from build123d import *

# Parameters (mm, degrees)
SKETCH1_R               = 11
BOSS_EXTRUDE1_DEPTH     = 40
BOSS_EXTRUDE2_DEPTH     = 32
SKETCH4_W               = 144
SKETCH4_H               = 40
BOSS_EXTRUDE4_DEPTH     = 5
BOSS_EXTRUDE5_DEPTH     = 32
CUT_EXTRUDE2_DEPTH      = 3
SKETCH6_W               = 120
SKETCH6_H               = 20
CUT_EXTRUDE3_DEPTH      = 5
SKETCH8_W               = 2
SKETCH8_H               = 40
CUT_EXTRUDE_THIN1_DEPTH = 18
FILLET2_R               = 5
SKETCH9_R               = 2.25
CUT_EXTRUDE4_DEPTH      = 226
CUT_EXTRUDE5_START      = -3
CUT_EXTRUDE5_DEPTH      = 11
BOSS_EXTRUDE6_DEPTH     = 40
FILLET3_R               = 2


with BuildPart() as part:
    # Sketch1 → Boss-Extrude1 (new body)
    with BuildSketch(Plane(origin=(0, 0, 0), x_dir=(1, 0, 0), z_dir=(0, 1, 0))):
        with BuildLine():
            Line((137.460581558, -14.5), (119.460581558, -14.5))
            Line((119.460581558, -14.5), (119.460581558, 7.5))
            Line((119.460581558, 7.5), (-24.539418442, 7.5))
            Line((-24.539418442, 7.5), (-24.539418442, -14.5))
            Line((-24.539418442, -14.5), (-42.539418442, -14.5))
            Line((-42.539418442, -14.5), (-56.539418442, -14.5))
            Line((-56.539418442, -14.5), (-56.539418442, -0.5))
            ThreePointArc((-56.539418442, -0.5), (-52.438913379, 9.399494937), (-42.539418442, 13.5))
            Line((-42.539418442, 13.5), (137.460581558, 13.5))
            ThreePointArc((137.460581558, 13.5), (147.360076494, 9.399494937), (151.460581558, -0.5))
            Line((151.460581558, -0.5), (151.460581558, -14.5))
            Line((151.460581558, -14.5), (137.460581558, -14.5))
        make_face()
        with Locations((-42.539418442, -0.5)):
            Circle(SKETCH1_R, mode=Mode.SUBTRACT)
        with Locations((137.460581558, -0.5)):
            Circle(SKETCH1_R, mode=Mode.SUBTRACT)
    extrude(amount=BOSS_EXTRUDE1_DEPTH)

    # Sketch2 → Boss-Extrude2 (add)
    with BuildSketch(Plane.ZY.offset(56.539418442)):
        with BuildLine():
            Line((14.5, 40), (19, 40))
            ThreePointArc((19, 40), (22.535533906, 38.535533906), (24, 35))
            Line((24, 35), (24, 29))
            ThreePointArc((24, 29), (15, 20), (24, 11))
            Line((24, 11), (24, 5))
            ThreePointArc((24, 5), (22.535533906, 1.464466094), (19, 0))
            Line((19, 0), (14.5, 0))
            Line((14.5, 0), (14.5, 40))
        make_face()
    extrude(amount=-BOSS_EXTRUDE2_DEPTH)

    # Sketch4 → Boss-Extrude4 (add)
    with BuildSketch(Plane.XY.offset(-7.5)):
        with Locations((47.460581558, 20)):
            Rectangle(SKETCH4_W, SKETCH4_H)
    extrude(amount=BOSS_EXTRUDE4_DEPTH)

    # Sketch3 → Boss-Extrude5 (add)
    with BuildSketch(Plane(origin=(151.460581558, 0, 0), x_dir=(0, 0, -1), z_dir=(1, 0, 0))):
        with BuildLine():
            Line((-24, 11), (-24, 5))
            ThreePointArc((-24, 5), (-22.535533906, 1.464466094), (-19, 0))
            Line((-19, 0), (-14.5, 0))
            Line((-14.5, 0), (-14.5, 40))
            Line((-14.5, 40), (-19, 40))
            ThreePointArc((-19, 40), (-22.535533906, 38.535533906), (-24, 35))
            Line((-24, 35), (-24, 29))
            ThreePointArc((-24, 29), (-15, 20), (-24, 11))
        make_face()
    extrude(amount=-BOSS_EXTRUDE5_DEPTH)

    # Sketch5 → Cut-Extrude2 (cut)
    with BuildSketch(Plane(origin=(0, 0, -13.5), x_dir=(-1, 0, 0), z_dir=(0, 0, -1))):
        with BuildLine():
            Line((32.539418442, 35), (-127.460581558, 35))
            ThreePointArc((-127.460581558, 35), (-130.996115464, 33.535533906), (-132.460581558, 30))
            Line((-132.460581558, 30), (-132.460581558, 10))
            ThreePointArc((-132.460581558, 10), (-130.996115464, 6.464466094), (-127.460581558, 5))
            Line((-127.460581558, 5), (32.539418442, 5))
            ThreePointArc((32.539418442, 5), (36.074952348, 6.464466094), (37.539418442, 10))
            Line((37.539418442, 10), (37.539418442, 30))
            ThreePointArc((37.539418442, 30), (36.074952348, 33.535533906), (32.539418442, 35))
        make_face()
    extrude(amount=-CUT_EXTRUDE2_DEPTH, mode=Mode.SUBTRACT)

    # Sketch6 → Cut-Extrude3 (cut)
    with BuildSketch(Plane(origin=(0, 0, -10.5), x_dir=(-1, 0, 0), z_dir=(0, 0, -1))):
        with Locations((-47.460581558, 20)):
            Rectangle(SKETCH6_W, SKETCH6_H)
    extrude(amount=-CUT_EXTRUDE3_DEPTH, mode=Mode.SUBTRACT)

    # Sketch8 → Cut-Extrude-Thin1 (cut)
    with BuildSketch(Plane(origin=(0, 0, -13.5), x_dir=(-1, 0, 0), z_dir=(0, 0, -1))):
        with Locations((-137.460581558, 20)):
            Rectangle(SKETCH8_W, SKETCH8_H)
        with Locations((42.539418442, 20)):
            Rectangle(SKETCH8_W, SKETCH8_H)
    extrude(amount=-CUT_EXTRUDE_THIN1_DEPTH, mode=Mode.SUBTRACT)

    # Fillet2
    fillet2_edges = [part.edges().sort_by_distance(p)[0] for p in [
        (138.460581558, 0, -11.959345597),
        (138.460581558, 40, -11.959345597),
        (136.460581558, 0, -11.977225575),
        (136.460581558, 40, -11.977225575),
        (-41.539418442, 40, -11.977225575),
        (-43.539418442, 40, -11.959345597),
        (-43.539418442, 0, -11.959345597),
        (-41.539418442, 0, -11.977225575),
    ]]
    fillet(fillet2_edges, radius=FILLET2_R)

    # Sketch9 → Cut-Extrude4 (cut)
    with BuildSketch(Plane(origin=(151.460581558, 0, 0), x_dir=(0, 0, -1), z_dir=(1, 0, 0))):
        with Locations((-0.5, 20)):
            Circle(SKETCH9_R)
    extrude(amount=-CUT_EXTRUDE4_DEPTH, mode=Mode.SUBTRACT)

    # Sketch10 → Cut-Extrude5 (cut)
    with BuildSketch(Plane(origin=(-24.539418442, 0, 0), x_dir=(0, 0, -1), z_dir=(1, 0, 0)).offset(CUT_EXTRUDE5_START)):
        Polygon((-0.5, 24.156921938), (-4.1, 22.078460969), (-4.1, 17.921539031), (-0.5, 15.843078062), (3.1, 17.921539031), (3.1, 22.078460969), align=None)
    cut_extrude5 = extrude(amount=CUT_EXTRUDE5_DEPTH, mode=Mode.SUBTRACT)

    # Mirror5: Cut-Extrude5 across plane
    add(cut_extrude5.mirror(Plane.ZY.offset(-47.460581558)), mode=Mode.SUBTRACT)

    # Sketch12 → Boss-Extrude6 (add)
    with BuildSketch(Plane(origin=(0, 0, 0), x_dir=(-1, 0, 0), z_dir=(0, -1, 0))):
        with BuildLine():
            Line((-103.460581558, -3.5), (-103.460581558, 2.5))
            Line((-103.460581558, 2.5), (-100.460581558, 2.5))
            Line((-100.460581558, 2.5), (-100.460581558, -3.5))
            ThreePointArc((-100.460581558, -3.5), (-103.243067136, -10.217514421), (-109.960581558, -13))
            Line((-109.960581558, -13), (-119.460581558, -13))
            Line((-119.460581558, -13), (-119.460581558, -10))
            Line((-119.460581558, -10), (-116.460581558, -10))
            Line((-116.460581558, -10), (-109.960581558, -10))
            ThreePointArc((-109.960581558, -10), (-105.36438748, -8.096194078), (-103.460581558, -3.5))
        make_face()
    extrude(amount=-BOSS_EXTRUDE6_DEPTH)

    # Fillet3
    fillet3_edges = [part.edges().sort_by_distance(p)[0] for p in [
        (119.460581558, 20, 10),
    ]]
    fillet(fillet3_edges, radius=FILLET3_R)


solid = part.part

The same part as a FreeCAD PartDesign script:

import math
import FreeCAD as App
import Part
import Sketcher

V = App.Vector
Q = App.Units.Quantity


def edges_at(feature, points):
    """Names of the edges that pass closest to the given points."""
    edges = feature.Shape.Edges
    near = lambda p: min(range(len(edges)), key=lambda i: edges[i].distToShape(Part.Vertex(*p))[0])
    return sorted({f"Edge{near(p) + 1}" for p in points})

doc = App.newDocument("Part")
params = doc.addObject("Spreadsheet::Sheet", "Params")
for row, (alias, value) in enumerate([
    ("sketch1_diameter", "22 mm"),
    ("sketch1_radius", "14 mm"),
    ("sketch1_width", "32 mm"),
    ("sketch1_width2", "180 mm"),
    ("sketch1_height", "22 mm"),
    ("pad1_length", "40 mm"),
    ("sketch2_radius", "5 mm"),
    ("sketch2_radius2", "9 mm"),
    ("sketch2_width", "40 mm"),
    ("sketch2_height", "4.5 mm"),
    ("pad2_length", "32 mm"),
    ("sketch3_width", "144 mm"),
    ("sketch3_height", "40 mm"),
    ("pad3_length", "5 mm"),
    ("sketch4_radius", "5 mm"),
    ("sketch4_radius2", "9 mm"),
    ("sketch4_width", "6 mm"),
    ("sketch4_height", "4.5 mm"),
    ("pad4_length", "32 mm"),
    ("sketch5_radius", "5 mm"),
    ("sketch5_width", "160 mm"),
    ("sketch5_height", "20 mm"),
    ("pocket1_length", "3 mm"),
    ("sketch6_width", "120 mm"),
    ("sketch6_height", "20 mm"),
    ("pocket2_length", "5 mm"),
    ("sketch7_width", "2 mm"),
    ("sketch7_height", "40 mm"),
    ("pocket3_length", "18 mm"),
    ("fillet_radius", "5 mm"),
    ("sketch8_diameter", "4.5 mm"),
    ("pocket4_length", "226 mm"),
    ("pocket5_length", "11 mm"),
    ("sketch10_radius", "6.5 mm"),
    ("sketch10_radius2", "9.5 mm"),
    ("sketch10_height", "6 mm"),
    ("sketch10_width", "9.5 mm"),
    ("pad5_length", "40 mm"),
    ("fillet2_radius", "2 mm"),
], start=1):
    params.set(f"A{row}", alias)
    params.set(f"B{row}", "=" + value)
    params.setAlias(f"B{row}", alias)

body = doc.addObject("PartDesign::Body", "Body")

# Sketch on XZ plane
sketch1 = body.newObject("Sketcher::SketchObject", "Sketch")
sketch1.AttachmentSupport = (doc.getObject("XZ_Plane"), [""])
sketch1.MapMode = "FlatFace"
sketch1.addGeometry([
    Part.LineSegment(V(119, -8, 0), V(119, 14, 0)),  # 0
    Part.LineSegment(V(119, 14, 0), V(151, 14, 0)),  # 1
    Part.LineSegment(V(151, 14, 0), V(151, 0, 0)),  # 2
    Part.ArcOfCircle(Part.Circle(V(137, 0, 0), V(0, 0, 1), 14), math.radians(-90), math.radians(0)),  # 3
    Part.LineSegment(V(137, -14, 0), V(-43, -14, 0)),  # 4
    Part.ArcOfCircle(Part.Circle(V(-43, 0, 0), V(0, 0, 1), 14), math.radians(180), math.radians(270)),  # 5
    Part.LineSegment(V(-57, 0, 0), V(-57, 14, 0)),  # 6
    Part.LineSegment(V(-57, 14, 0), V(-25, 14, 0)),  # 7
    Part.LineSegment(V(-25, 14, 0), V(-25, -8, 0)),  # 8
    Part.LineSegment(V(-25, -8, 0), V(119, -8, 0)),  # 9
    Part.Circle(V(137, 0, 0), V(0, 0, 1), 11),  # 10
    Part.Circle(V(-43, 0, 0), V(0, 0, 1), 11),  # 11
], False)
sketch1.addConstraint([
    Sketcher.Constraint("Coincident", 0, 2, 1, 1),
    Sketcher.Constraint("Coincident", 1, 2, 2, 1),
    Sketcher.Constraint("Tangent", 2, 2, 3, 2),
    Sketcher.Constraint("Tangent", 3, 1, 4, 1),
    Sketcher.Constraint("Tangent", 4, 2, 5, 2),
    Sketcher.Constraint("Tangent", 5, 1, 6, 1),
    Sketcher.Constraint("Coincident", 6, 2, 7, 1),
    Sketcher.Constraint("Coincident", 7, 2, 8, 1),
    Sketcher.Constraint("Coincident", 8, 2, 9, 1),
    Sketcher.Constraint("Coincident", 9, 2, 0, 1),
    Sketcher.Constraint("Vertical", 0),
    Sketcher.Constraint("Horizontal", 1),
    Sketcher.Constraint("Vertical", 2),
    Sketcher.Constraint("Horizontal", 4),
    Sketcher.Constraint("Vertical", 6),
    Sketcher.Constraint("Horizontal", 7),
    Sketcher.Constraint("Vertical", 8),
    Sketcher.Constraint("Horizontal", 9),
    Sketcher.Constraint("Coincident", 10, 3, 3, 3),
    Sketcher.Constraint("Coincident", 11, 3, 5, 3),
    Sketcher.Constraint("Equal", 3, 5),
    Sketcher.Constraint("Equal", 10, 11),
    Sketcher.Constraint("Horizontal", 1, 2, 6, 2),
    Sketcher.Constraint("Equal", 1, 7),
    Sketcher.Constraint("Diameter", 10, Q("22 mm")),
    Sketcher.Constraint("Radius", 3, Q("14 mm")),
    Sketcher.Constraint("DistanceX", 1, 1, 1, 2, Q("32 mm")),
    Sketcher.Constraint("DistanceX", 4, 2, 4, 1, Q("180 mm")),
    Sketcher.Constraint("DistanceY", 0, 1, 0, 2, Q("22 mm")),
    Sketcher.Constraint("DistanceY", 2, 2, 2, 1, Q("14 mm")),
    Sketcher.Constraint("DistanceY", -1, 1, 3, 3, Q("0.5 mm")),
    Sketcher.Constraint("DistanceX", -1, 1, 3, 3, Q("137.460582 mm")),
])
sketch1.setExpression("Constraints[24]", "Params.sketch1_diameter")
sketch1.setExpression("Constraints[25]", "Params.sketch1_radius")
sketch1.setExpression("Constraints[26]", "Params.sketch1_width")
sketch1.setExpression("Constraints[27]", "Params.sketch1_width2")
sketch1.setExpression("Constraints[28]", "Params.sketch1_height")
pad1 = body.newObject("PartDesign::Pad", "Pad")
pad1.Profile = sketch1
pad1.setExpression("Length", "Params.pad1_length")
pad1.Reversed = True

# Sketch on YZ plane
sketch2 = body.newObject("Sketcher::SketchObject", "Sketch001")
sketch2.AttachmentSupport = (doc.getObject("YZ_Plane"), [""])
sketch2.MapMode = "FlatFace"
sketch2.AttachmentOffset = App.Placement(V(0, 0, -56.539418), App.Rotation())
sketch2.addGeometry([
    Part.LineSegment(V(40, 19, 0), V(40, 14.5, 0)),  # 0
    Part.LineSegment(V(40, 14.5, 0), V(0, 14.5, 0)),  # 1
    Part.LineSegment(V(0, 14.5, 0), V(0, 19, 0)),  # 2
    Part.ArcOfCircle(Part.Circle(V(5, 19, 0), V(0, 0, 1), 5), math.radians(90), math.radians(180)),  # 3
    Part.LineSegment(V(5, 24, 0), V(11, 24, 0)),  # 4
    Part.ArcOfCircle(Part.Circle(V(20, 24, 0), V(0, 0, 1), 9), math.radians(180), math.radians(360)),  # 5
    Part.LineSegment(V(29, 24, 0), V(35, 24, 0)),  # 6
    Part.ArcOfCircle(Part.Circle(V(35, 19, 0), V(0, 0, 1), 5), math.radians(0), math.radians(90)),  # 7
], False)
sketch2.addConstraint([
    Sketcher.Constraint("Coincident", 0, 2, 1, 1),
    Sketcher.Constraint("Coincident", 1, 2, 2, 1),
    Sketcher.Constraint("Tangent", 2, 2, 3, 2),
    Sketcher.Constraint("Tangent", 3, 1, 4, 1),
    Sketcher.Constraint("Coincident", 4, 2, 5, 1),
    Sketcher.Constraint("Coincident", 5, 2, 6, 1),
    Sketcher.Constraint("Tangent", 6, 2, 7, 2),
    Sketcher.Constraint("Tangent", 7, 1, 0, 1),
    Sketcher.Constraint("Vertical", 0),
    Sketcher.Constraint("Horizontal", 1),
    Sketcher.Constraint("Vertical", 2),
    Sketcher.Constraint("Horizontal", 4),
    Sketcher.Constraint("Horizontal", 6),
    Sketcher.Constraint("Equal", 3, 7),
    Sketcher.Constraint("PointOnObject", 1, 2, -2),
    Sketcher.Constraint("Horizontal", 3, 3, 7, 3),
    Sketcher.Constraint("Horizontal", 5, 3, 3, 1),
    Sketcher.Constraint("Equal", 4, 6),
    Sketcher.Constraint("Radius", 3, Q("5 mm")),
    Sketcher.Constraint("Radius", 5, Q("9 mm")),
    Sketcher.Constraint("DistanceX", 1, 2, 1, 1, Q("40 mm")),
    Sketcher.Constraint("DistanceY", 0, 2, 0, 1, Q("4.5 mm")),
    Sketcher.Constraint("DistanceY", -1, 1, 3, 3, Q("19 mm")),
])
sketch2.setExpression("Constraints[18]", "Params.sketch2_radius")
sketch2.setExpression("Constraints[19]", "Params.sketch2_radius2")
sketch2.setExpression("Constraints[20]", "Params.sketch2_width")
sketch2.setExpression("Constraints[21]", "Params.sketch2_height")
pad2 = body.newObject("PartDesign::Pad", "Pad001")
pad2.Profile = sketch2
pad2.setExpression("Length", "Params.pad2_length")

# Sketch on XY plane
sketch3 = body.newObject("Sketcher::SketchObject", "Sketch002")
sketch3.AttachmentSupport = (doc.getObject("XY_Plane"), [""])
sketch3.MapMode = "FlatFace"
sketch3.AttachmentOffset = App.Placement(V(0, 0, -7.5), App.Rotation())
sketch3.addGeometry([
    Part.LineSegment(V(-25, 40, 0), V(-25, 0, 0)),
    Part.LineSegment(V(-25, 0, 0), V(119, 0, 0)),
    Part.LineSegment(V(119, 0, 0), V(119, 40, 0)),
    Part.LineSegment(V(119, 40, 0), V(-25, 40, 0)),
], False)
sketch3.addConstraint([
    Sketcher.Constraint("Coincident", 0, 2, 1, 1),
    Sketcher.Constraint("Coincident", 1, 2, 2, 1),
    Sketcher.Constraint("Coincident", 2, 2, 3, 1),
    Sketcher.Constraint("Coincident", 3, 2, 0, 1),
    Sketcher.Constraint("Vertical", 0),
    Sketcher.Constraint("Horizontal", 1),
    Sketcher.Constraint("Vertical", 2),
    Sketcher.Constraint("Horizontal", 3),
    Sketcher.Constraint("PointOnObject", 0, 2, -1),
    Sketcher.Constraint("DistanceX", 1, 1, 1, 2, Q("144 mm")),
    Sketcher.Constraint("DistanceY", 0, 2, 0, 1, Q("40 mm")),
    Sketcher.Constraint("DistanceX", 0, 2, -1, 1, Q("24.539418 mm")),
])
sketch3.setExpression("Constraints[9]", "Params.sketch3_width")
sketch3.setExpression("Constraints[10]", "Params.sketch3_height")
pad3 = body.newObject("PartDesign::Pad", "Pad002")
pad3.Profile = sketch3
pad3.setExpression("Length", "Params.pad3_length")

# Sketch on YZ plane
sketch4 = body.newObject("Sketcher::SketchObject", "Sketch003")
sketch4.AttachmentSupport = (doc.getObject("YZ_Plane"), [""])
sketch4.MapMode = "FlatFace"
sketch4.AttachmentOffset = App.Placement(V(0, 0, 151.460582), App.Rotation())
sketch4.addGeometry([
    Part.LineSegment(V(11, 24, 0), V(5, 24, 0)),  # 0
    Part.ArcOfCircle(Part.Circle(V(5, 19, 0), V(0, 0, 1), 5), math.radians(90), math.radians(180)),  # 1
    Part.LineSegment(V(0, 19, 0), V(0, 14.5, 0)),  # 2
    Part.LineSegment(V(0, 14.5, 0), V(40, 14.5, 0)),  # 3
    Part.LineSegment(V(40, 14.5, 0), V(40, 19, 0)),  # 4
    Part.ArcOfCircle(Part.Circle(V(35, 19, 0), V(0, 0, 1), 5), math.radians(0), math.radians(90)),  # 5
    Part.LineSegment(V(35, 24, 0), V(29, 24, 0)),  # 6
    Part.ArcOfCircle(Part.Circle(V(20, 24, 0), V(0, 0, 1), 9), math.radians(180), math.radians(360)),  # 7
], False)
sketch4.addConstraint([
    Sketcher.Constraint("Tangent", 0, 2, 1, 1),
    Sketcher.Constraint("Tangent", 1, 2, 2, 1),
    Sketcher.Constraint("Coincident", 2, 2, 3, 1),
    Sketcher.Constraint("Coincident", 3, 2, 4, 1),
    Sketcher.Constraint("Tangent", 4, 2, 5, 1),
    Sketcher.Constraint("Tangent", 5, 2, 6, 1),
    Sketcher.Constraint("Coincident", 6, 2, 7, 2),
    Sketcher.Constraint("Coincident", 7, 1, 0, 1),
    Sketcher.Constraint("Horizontal", 0),
    Sketcher.Constraint("Vertical", 2),
    Sketcher.Constraint("Horizontal", 3),
    Sketcher.Constraint("Vertical", 4),
    Sketcher.Constraint("Horizontal", 6),
    Sketcher.Constraint("Equal", 1, 5),
    Sketcher.Constraint("PointOnObject", 1, 2, -2),
    Sketcher.Constraint("Horizontal", 1, 3, 5, 3),
    Sketcher.Constraint("Horizontal", 7, 3, 0, 2),
    Sketcher.Constraint("Equal", 0, 6),
    Sketcher.Constraint("Radius", 1, Q("5 mm")),
    Sketcher.Constraint("Radius", 7, Q("9 mm")),
    Sketcher.Constraint("DistanceX", 0, 2, 0, 1, Q("6 mm")),
    Sketcher.Constraint("DistanceY", 2, 2, 2, 1, Q("4.5 mm")),
    Sketcher.Constraint("DistanceY", -1, 1, 1, 3, Q("19 mm")),
])
sketch4.setExpression("Constraints[18]", "Params.sketch4_radius")
sketch4.setExpression("Constraints[19]", "Params.sketch4_radius2")
sketch4.setExpression("Constraints[20]", "Params.sketch4_width")
sketch4.setExpression("Constraints[21]", "Params.sketch4_height")
pad4 = body.newObject("PartDesign::Pad", "Pad003")
pad4.Profile = sketch4
pad4.setExpression("Length", "Params.pad4_length")
pad4.Reversed = True

# Sketch on XY plane
sketch5 = body.newObject("Sketcher::SketchObject", "Sketch004")
sketch5.AttachmentSupport = (doc.getObject("XY_Plane"), [""])
sketch5.MapMode = "FlatFace"
sketch5.AttachmentOffset = App.Placement(V(0, 0, -13.5), App.Rotation())
sketch5.addGeometry([
    Part.LineSegment(V(-33, 35, 0), V(127, 35, 0)),  # 0
    Part.ArcOfCircle(Part.Circle(V(127, 30, 0), V(0, 0, 1), 5), math.radians(0), math.radians(90)),  # 1
    Part.LineSegment(V(132, 30, 0), V(132, 10, 0)),  # 2
    Part.ArcOfCircle(Part.Circle(V(127, 10, 0), V(0, 0, 1), 5), math.radians(-90), math.radians(0)),  # 3
    Part.LineSegment(V(127, 5, 0), V(-33, 5, 0)),  # 4
    Part.ArcOfCircle(Part.Circle(V(-33, 10, 0), V(0, 0, 1), 5), math.radians(180), math.radians(270)),  # 5
    Part.LineSegment(V(-38, 10, 0), V(-38, 30, 0)),  # 6
    Part.ArcOfCircle(Part.Circle(V(-33, 30, 0), V(0, 0, 1), 5), math.radians(90), math.radians(180)),  # 7
], False)
sketch5.addConstraint([
    Sketcher.Constraint("Tangent", 0, 2, 1, 2),
    Sketcher.Constraint("Tangent", 1, 1, 2, 1),
    Sketcher.Constraint("Tangent", 2, 2, 3, 2),
    Sketcher.Constraint("Tangent", 3, 1, 4, 1),
    Sketcher.Constraint("Tangent", 4, 2, 5, 2),
    Sketcher.Constraint("Tangent", 5, 1, 6, 1),
    Sketcher.Constraint("Tangent", 6, 2, 7, 2),
    Sketcher.Constraint("Tangent", 7, 1, 0, 1),
    Sketcher.Constraint("Horizontal", 0),
    Sketcher.Constraint("Vertical", 2),
    Sketcher.Constraint("Horizontal", 4),
    Sketcher.Constraint("Vertical", 6),
    Sketcher.Constraint("Equal", 1, 3),
    Sketcher.Constraint("Equal", 3, 5),
    Sketcher.Constraint("Equal", 5, 7),
    Sketcher.Constraint("Radius", 1, Q("5 mm")),
    Sketcher.Constraint("DistanceX", 0, 1, 0, 2, Q("160 mm")),
    Sketcher.Constraint("DistanceY", 2, 2, 2, 1, Q("20 mm")),
    Sketcher.Constraint("DistanceY", -1, 1, 1, 3, Q("30 mm")),
    Sketcher.Constraint("DistanceX", -1, 1, 1, 3, Q("127.460582 mm")),
])
sketch5.setExpression("Constraints[15]", "Params.sketch5_radius")
sketch5.setExpression("Constraints[16]", "Params.sketch5_width")
sketch5.setExpression("Constraints[17]", "Params.sketch5_height")
pocket1 = body.newObject("PartDesign::Pocket", "Pocket")
pocket1.Profile = sketch5
pocket1.setExpression("Length", "Params.pocket1_length")
pocket1.Reversed = True

# Sketch on XY plane
sketch6 = body.newObject("Sketcher::SketchObject", "Sketch005")
sketch6.AttachmentSupport = (doc.getObject("XY_Plane"), [""])
sketch6.MapMode = "FlatFace"
sketch6.AttachmentOffset = App.Placement(V(0, 0, -10.5), App.Rotation())
sketch6.addGeometry([
    Part.LineSegment(V(107, 30, 0), V(107, 10, 0)),
    Part.LineSegment(V(107, 10, 0), V(-13, 10, 0)),
    Part.LineSegment(V(-13, 10, 0), V(-13, 30, 0)),
    Part.LineSegment(V(-13, 30, 0), V(107, 30, 0)),
], False)
sketch6.addConstraint([
    Sketcher.Constraint("Coincident", 0, 2, 1, 1),
    Sketcher.Constraint("Coincident", 1, 2, 2, 1),
    Sketcher.Constraint("Coincident", 2, 2, 3, 1),
    Sketcher.Constraint("Coincident", 3, 2, 0, 1),
    Sketcher.Constraint("Vertical", 0),
    Sketcher.Constraint("Horizontal", 1),
    Sketcher.Constraint("Vertical", 2),
    Sketcher.Constraint("Horizontal", 3),
    Sketcher.Constraint("DistanceX", 1, 2, 1, 1, Q("120 mm")),
    Sketcher.Constraint("DistanceY", 0, 2, 0, 1, Q("20 mm")),
    Sketcher.Constraint("DistanceY", -1, 1, 0, 2, Q("10 mm")),
    Sketcher.Constraint("DistanceX", -1, 1, 0, 2, Q("107.460582 mm")),
])
sketch6.setExpression("Constraints[8]", "Params.sketch6_width")
sketch6.setExpression("Constraints[9]", "Params.sketch6_height")
pocket2 = body.newObject("PartDesign::Pocket", "Pocket001")
pocket2.Profile = sketch6
pocket2.setExpression("Length", "Params.pocket2_length")
pocket2.Reversed = True

# Sketch on XY plane
sketch7 = body.newObject("Sketcher::SketchObject", "Sketch006")
sketch7.AttachmentSupport = (doc.getObject("XY_Plane"), [""])
sketch7.MapMode = "FlatFace"
sketch7.AttachmentOffset = App.Placement(V(0, 0, -13.5), App.Rotation())
sketch7.addGeometry([
    Part.LineSegment(V(138.5, 40, 0), V(138.5, 0, 0)),  # 0
    Part.LineSegment(V(138.5, 0, 0), V(136.5, 0, 0)),  # 1
    Part.LineSegment(V(136.5, 0, 0), V(136.5, 40, 0)),  # 2
    Part.LineSegment(V(136.5, 40, 0), V(138.5, 40, 0)),  # 3
    Part.LineSegment(V(-41.5, 40, 0), V(-41.5, 0, 0)),  # 4
    Part.LineSegment(V(-41.5, 0, 0), V(-43.5, 0, 0)),  # 5
    Part.LineSegment(V(-43.5, 0, 0), V(-43.5, 40, 0)),  # 6
    Part.LineSegment(V(-43.5, 40, 0), V(-41.5, 40, 0)),  # 7
], False)
sketch7.addConstraint([
    Sketcher.Constraint("Coincident", 0, 2, 1, 1),
    Sketcher.Constraint("Coincident", 1, 2, 2, 1),
    Sketcher.Constraint("Coincident", 2, 2, 3, 1),
    Sketcher.Constraint("Coincident", 3, 2, 0, 1),
    Sketcher.Constraint("Coincident", 4, 2, 5, 1),
    Sketcher.Constraint("Coincident", 5, 2, 6, 1),
    Sketcher.Constraint("Coincident", 6, 2, 7, 1),
    Sketcher.Constraint("Coincident", 7, 2, 4, 1),
    Sketcher.Constraint("Vertical", 0),
    Sketcher.Constraint("Horizontal", 1),
    Sketcher.Constraint("Vertical", 2),
    Sketcher.Constraint("Horizontal", 3),
    Sketcher.Constraint("Vertical", 4),
    Sketcher.Constraint("Horizontal", 5),
    Sketcher.Constraint("Vertical", 6),
    Sketcher.Constraint("Horizontal", 7),
    Sketcher.Constraint("PointOnObject", 0, 2, -1),
    Sketcher.Constraint("PointOnObject", 4, 2, -1),
    Sketcher.Constraint("Horizontal", 3, 2, 6, 2),
    Sketcher.Constraint("Equal", 3, 5),
    Sketcher.Constraint("DistanceX", 1, 2, 1, 1, Q("2 mm")),
    Sketcher.Constraint("DistanceY", 0, 2, 0, 1, Q("40 mm")),
    Sketcher.Constraint("DistanceX", 4, 2, 1, 2, Q("178 mm")),
    Sketcher.Constraint("DistanceX", -1, 1, 0, 2, Q("138.460582 mm")),
])
sketch7.setExpression("Constraints[20]", "Params.sketch7_width")
sketch7.setExpression("Constraints[21]", "Params.sketch7_height")
pocket3 = body.newObject("PartDesign::Pocket", "Pocket002")
pocket3.Profile = sketch7
pocket3.setExpression("Length", "Params.pocket3_length")
pocket3.Reversed = True
doc.recompute()

fillet = body.newObject("PartDesign::Fillet", "Fillet")
fillet.Base = (pocket3, edges_at(pocket3, [
    (138.461, 0, -11.959),
    (138.461, 40, -11.959),
    (136.461, 0, -11.977),
    (136.461, 40, -11.977),
    (-41.539, 40, -11.977),
    (-43.539, 40, -11.959),
    (-43.539, 0, -11.959),
    (-41.539, 0, -11.977),
]))
fillet.setExpression("Radius", "Params.fillet_radius")

# Sketch on YZ plane
sketch8 = body.newObject("Sketcher::SketchObject", "Sketch007")
sketch8.AttachmentSupport = (doc.getObject("YZ_Plane"), [""])
sketch8.MapMode = "FlatFace"
sketch8.AttachmentOffset = App.Placement(V(0, 0, 151.460582), App.Rotation())
sketch8.addGeometry(Part.Circle(V(20, 0.5, 0), V(0, 0, 1), 2.2), False)
sketch8.addConstraint([
    Sketcher.Constraint("Diameter", 0, Q("4.5 mm")),
    Sketcher.Constraint("DistanceX", -1, 1, 0, 3, Q("20 mm")),
    Sketcher.Constraint("DistanceY", -1, 1, 0, 3, Q("0.5 mm")),
])
sketch8.setExpression("Constraints[0]", "Params.sketch8_diameter")
pocket4 = body.newObject("PartDesign::Pocket", "Pocket003")
pocket4.Profile = sketch8
pocket4.setExpression("Length", "Params.pocket4_length")

# Sketch on YZ plane
sketch9 = body.newObject("Sketcher::SketchObject", "Sketch008")
sketch9.AttachmentSupport = (doc.getObject("YZ_Plane"), [""])
sketch9.MapMode = "FlatFace"
sketch9.AttachmentOffset = App.Placement(V(0, 0, -27.539418), App.Rotation())
sketch9.addGeometry([
    Part.LineSegment(V(24.2, 0.5, 0), V(22.1, 4.1, 0)),  # 0
    Part.LineSegment(V(22.1, 4.1, 0), V(17.9, 4.1, 0)),  # 1
    Part.LineSegment(V(17.9, 4.1, 0), V(15.8, 0.5, 0)),  # 2
    Part.LineSegment(V(15.8, 0.5, 0), V(17.9, -3.1, 0)),  # 3
    Part.LineSegment(V(17.9, -3.1, 0), V(22.1, -3.1, 0)),  # 4
    Part.LineSegment(V(22.1, -3.1, 0), V(24.2, 0.5, 0)),  # 5
], False)
sketch9.addConstraint([
    Sketcher.Constraint("Coincident", 0, 2, 1, 1),
    Sketcher.Constraint("Coincident", 1, 2, 2, 1),
    Sketcher.Constraint("Coincident", 2, 2, 3, 1),
    Sketcher.Constraint("Coincident", 3, 2, 4, 1),
    Sketcher.Constraint("Coincident", 4, 2, 5, 1),
    Sketcher.Constraint("Coincident", 5, 2, 0, 1),
    Sketcher.Constraint("Horizontal", 1),
    Sketcher.Constraint("Horizontal", 4),
    Sketcher.Constraint("Parallel", 0, 3),
    Sketcher.Constraint("Parallel", 2, 5),
    Sketcher.Constraint("Horizontal", 2, 2, 5, 2),
    Sketcher.Constraint("Vertical", 1, 2, 3, 2),
    Sketcher.Constraint("Vertical", 0, 2, 4, 2),
    Sketcher.Constraint("Angle", 0, Q("120 deg")),
    Sketcher.Constraint("DistanceY", -1, 1, 0, 2, Q("4.1 mm")),
    Sketcher.Constraint("DistanceY", -1, 1, 2, 2, Q("0.5 mm")),
    Sketcher.Constraint("DistanceX", 1, 2, 1, 1, Q("4.156922 mm")),
    Sketcher.Constraint("DistanceX", -1, 1, 0, 2, Q("22.078461 mm")),
])
pocket5 = body.newObject("PartDesign::Pocket", "Pocket004")
pocket5.Profile = sketch9
pocket5.setExpression("Length", "Params.pocket5_length")
pocket5.Reversed = True
doc.recompute()

datumplane = body.newObject("PartDesign::Plane", "DatumPlane")
datumplane.AttachmentSupport = (doc.getObject("YZ_Plane"), [""])
datumplane.MapMode = "FlatFace"
datumplane.AttachmentOffset = App.Placement(V(0, 0, 47.460582), App.Rotation())
mirrored = body.newObject("PartDesign::Mirrored", "Mirrored")
mirrored.Originals = [pocket5]
mirrored.MirrorPlane = (datumplane, [""])
body.Tip = mirrored

# Sketch on XZ plane
sketch10 = body.newObject("Sketcher::SketchObject", "Sketch009")
sketch10.AttachmentSupport = (doc.getObject("XZ_Plane"), [""])
sketch10.MapMode = "FlatFace"
sketch10.addGeometry([
    Part.LineSegment(V(103.5, -2.5, 0), V(103.5, 3.5, 0)),  # 0
    Part.ArcOfCircle(Part.Circle(V(110, 3.5, 0), V(0, 0, 1), 6.5), math.radians(90), math.radians(180)),  # 1
    Part.LineSegment(V(110, 10, 0), V(119.5, 10, 0)),  # 2
    Part.LineSegment(V(119.5, 10, 0), V(119.5, 13, 0)),  # 3
    Part.LineSegment(V(119.5, 13, 0), V(110, 13, 0)),  # 4
    Part.ArcOfCircle(Part.Circle(V(110, 3.5, 0), V(0, 0, 1), 9.5), math.radians(90), math.radians(180)),  # 5
    Part.LineSegment(V(100.5, 3.5, 0), V(100.5, -2.5, 0)),  # 6
    Part.LineSegment(V(100.5, -2.5, 0), V(103.5, -2.5, 0)),  # 7
], False)
sketch10.addConstraint([
    Sketcher.Constraint("Tangent", 0, 2, 1, 2),
    Sketcher.Constraint("Tangent", 1, 1, 2, 1),
    Sketcher.Constraint("Coincident", 2, 2, 3, 1),
    Sketcher.Constraint("Coincident", 3, 2, 4, 1),
    Sketcher.Constraint("Tangent", 4, 2, 5, 1),
    Sketcher.Constraint("Tangent", 5, 2, 6, 1),
    Sketcher.Constraint("Coincident", 6, 2, 7, 1),
    Sketcher.Constraint("Coincident", 7, 2, 0, 1),
    Sketcher.Constraint("Vertical", 0),
    Sketcher.Constraint("Horizontal", 2),
    Sketcher.Constraint("Vertical", 3),
    Sketcher.Constraint("Horizontal", 4),
    Sketcher.Constraint("Vertical", 6),
    Sketcher.Constraint("Horizontal", 7),
    Sketcher.Constraint("Coincident", 5, 3, 1, 3),
    Sketcher.Constraint("Radius", 1, Q("6.5 mm")),
    Sketcher.Constraint("Radius", 5, Q("9.5 mm")),
    Sketcher.Constraint("DistanceY", 0, 1, 0, 2, Q("6 mm")),
    Sketcher.Constraint("DistanceX", 2, 1, 2, 2, Q("9.5 mm")),
    Sketcher.Constraint("DistanceY", -1, 1, 1, 1, Q("10 mm")),
    Sketcher.Constraint("DistanceX", -1, 1, 1, 3, Q("109.960582 mm")),
])
sketch10.setExpression("Constraints[15]", "Params.sketch10_radius")
sketch10.setExpression("Constraints[16]", "Params.sketch10_radius2")
sketch10.setExpression("Constraints[17]", "Params.sketch10_height")
sketch10.setExpression("Constraints[18]", "Params.sketch10_width")
pad5 = body.newObject("PartDesign::Pad", "Pad004")
pad5.Profile = sketch10
pad5.setExpression("Length", "Params.pad5_length")
pad5.Reversed = True
doc.recompute()

fillet2 = body.newObject("PartDesign::Fillet", "Fillet001")
fillet2.Base = (pad5, edges_at(pad5, [(119.461, 20, 10)]))
fillet2.setExpression("Radius", "Params.fillet2_radius")

doc.recompute()
